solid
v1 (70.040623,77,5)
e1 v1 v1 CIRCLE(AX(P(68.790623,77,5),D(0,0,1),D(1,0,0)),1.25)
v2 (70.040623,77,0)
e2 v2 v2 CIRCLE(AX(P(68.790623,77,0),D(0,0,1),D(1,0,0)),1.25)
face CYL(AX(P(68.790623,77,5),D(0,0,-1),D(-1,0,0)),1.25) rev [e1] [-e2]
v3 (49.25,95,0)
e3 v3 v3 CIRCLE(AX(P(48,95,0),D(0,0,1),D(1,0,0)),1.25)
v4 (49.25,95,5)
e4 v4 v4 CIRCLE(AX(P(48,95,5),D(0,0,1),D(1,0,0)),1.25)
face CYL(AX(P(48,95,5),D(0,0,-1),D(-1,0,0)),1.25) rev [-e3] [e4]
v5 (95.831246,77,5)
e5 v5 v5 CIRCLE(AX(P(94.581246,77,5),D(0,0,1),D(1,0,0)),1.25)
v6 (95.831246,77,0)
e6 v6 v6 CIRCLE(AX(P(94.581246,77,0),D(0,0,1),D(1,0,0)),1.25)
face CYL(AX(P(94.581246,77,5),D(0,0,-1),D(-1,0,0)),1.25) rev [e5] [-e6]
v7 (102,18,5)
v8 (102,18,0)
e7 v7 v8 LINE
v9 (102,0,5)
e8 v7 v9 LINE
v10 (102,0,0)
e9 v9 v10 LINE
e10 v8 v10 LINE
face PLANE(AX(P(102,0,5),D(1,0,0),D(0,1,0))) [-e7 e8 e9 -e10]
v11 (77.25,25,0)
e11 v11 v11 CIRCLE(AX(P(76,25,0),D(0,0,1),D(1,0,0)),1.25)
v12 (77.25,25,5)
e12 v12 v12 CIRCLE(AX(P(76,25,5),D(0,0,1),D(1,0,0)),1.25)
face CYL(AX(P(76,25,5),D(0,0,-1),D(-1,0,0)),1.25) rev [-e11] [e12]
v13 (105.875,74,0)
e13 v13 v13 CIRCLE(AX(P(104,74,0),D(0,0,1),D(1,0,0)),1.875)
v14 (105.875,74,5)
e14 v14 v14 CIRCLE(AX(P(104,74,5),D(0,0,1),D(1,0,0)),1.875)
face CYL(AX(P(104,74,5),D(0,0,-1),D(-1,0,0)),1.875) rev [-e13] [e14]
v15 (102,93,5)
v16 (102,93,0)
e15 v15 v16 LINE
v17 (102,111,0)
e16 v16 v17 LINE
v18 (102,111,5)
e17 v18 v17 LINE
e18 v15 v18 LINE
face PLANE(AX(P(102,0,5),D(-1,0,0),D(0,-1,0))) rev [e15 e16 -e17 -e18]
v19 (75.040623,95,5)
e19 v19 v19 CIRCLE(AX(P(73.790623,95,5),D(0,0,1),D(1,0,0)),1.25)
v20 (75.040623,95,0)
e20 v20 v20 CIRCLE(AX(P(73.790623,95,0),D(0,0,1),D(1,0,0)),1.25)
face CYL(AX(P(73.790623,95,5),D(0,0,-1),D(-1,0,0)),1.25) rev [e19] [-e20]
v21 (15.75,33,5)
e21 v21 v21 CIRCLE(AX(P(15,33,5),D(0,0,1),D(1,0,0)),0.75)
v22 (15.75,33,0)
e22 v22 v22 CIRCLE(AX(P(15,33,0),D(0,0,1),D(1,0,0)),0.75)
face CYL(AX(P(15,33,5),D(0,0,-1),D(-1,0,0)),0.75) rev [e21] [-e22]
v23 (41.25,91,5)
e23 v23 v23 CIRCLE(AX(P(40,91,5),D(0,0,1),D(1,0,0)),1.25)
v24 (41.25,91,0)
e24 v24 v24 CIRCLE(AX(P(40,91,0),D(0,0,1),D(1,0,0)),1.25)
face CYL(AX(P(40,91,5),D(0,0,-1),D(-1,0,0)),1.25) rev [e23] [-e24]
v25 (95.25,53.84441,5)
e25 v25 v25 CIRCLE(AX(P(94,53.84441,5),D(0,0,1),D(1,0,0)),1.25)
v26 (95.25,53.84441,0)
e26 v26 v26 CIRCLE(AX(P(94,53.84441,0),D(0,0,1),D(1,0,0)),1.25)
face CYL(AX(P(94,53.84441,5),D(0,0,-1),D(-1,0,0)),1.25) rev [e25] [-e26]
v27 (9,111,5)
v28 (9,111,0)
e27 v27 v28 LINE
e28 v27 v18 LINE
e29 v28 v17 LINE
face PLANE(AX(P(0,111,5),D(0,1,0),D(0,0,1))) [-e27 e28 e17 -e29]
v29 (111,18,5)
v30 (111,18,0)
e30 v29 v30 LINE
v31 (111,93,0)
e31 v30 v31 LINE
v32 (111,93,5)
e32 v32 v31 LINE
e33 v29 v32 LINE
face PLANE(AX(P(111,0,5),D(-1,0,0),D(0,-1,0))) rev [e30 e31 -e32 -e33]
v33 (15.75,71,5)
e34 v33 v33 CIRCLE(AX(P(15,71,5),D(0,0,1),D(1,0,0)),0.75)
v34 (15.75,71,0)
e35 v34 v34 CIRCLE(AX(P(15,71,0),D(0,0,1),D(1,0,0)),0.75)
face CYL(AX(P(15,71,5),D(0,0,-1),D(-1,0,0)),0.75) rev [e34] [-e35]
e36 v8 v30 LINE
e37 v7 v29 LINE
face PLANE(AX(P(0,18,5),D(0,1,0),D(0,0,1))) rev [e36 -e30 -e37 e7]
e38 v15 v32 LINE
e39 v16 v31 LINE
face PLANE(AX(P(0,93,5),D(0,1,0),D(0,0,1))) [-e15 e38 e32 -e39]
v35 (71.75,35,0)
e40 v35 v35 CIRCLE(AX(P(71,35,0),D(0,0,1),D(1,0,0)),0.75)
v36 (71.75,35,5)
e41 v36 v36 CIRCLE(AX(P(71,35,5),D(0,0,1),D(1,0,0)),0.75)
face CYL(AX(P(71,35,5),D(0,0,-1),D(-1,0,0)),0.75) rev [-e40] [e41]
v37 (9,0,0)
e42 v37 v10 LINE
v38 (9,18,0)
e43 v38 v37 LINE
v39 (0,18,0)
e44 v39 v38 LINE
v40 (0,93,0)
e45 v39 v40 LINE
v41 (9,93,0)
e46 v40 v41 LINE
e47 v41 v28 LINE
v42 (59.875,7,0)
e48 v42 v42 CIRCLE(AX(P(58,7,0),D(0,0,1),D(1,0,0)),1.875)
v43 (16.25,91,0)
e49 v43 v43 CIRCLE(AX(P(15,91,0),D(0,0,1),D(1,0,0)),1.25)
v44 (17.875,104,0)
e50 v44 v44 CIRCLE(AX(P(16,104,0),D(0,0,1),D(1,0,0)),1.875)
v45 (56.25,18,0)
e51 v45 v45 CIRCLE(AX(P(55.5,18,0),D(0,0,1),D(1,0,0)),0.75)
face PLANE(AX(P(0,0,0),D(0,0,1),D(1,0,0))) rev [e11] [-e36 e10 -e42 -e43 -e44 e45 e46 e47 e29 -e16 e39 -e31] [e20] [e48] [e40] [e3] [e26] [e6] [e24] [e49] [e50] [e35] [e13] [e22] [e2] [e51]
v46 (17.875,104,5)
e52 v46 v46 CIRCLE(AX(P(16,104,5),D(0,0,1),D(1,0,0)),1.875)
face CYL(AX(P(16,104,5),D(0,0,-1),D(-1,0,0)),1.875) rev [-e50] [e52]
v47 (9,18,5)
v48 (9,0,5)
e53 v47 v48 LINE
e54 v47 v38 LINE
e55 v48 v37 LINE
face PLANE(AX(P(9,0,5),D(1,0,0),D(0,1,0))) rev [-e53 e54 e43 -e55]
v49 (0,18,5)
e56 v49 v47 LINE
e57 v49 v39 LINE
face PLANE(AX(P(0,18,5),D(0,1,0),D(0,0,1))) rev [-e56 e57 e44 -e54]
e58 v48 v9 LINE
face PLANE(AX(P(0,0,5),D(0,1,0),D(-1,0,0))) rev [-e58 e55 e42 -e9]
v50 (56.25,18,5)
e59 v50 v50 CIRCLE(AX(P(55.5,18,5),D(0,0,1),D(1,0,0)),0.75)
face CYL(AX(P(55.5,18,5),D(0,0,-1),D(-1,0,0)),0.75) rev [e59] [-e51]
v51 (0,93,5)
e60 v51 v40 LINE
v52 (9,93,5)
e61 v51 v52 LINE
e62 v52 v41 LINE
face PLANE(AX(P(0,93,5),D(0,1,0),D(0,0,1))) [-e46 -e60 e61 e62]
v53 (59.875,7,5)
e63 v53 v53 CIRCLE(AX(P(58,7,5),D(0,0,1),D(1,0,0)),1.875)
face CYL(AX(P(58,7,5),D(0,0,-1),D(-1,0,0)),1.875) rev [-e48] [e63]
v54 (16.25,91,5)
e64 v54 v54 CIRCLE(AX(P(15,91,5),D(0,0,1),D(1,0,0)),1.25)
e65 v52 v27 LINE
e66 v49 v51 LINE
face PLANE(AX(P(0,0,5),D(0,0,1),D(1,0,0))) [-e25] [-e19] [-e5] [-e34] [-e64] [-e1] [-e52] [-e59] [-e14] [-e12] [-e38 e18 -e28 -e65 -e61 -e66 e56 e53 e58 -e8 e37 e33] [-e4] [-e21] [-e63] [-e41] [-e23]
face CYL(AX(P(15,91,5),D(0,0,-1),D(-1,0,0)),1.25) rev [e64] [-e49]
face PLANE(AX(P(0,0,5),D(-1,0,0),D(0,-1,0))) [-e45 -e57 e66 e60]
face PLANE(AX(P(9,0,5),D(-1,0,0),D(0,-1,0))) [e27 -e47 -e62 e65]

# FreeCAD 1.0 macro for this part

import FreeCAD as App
import Part
import Sketcher
from FreeCAD import Vector

doc = App.newDocument("Part")
body = doc.addObject("PartDesign::Body", "Body")

# Sketch on XY plane
sketch1 = doc.addObject("Sketcher::SketchObject", "Sketch")
body.addObject(sketch1)
sketch1.AttachmentSupport = (doc.XY_Plane, [""])
sketch1.MapMode = "FlatFace"
sketch1.addGeometry([
    Part.LineSegment(Vector(9, 18, 0), Vector(9, 0, 0)),  # 0
    Part.LineSegment(Vector(9, 0, 0), Vector(102, 0, 0)),  # 1
    Part.LineSegment(Vector(102, 0, 0), Vector(102, 18, 0)),  # 2
    Part.LineSegment(Vector(102, 18, 0), Vector(111, 18, 0)),  # 3
    Part.LineSegment(Vector(111, 18, 0), Vector(111, 93, 0)),  # 4
    Part.LineSegment(Vector(111, 93, 0), Vector(102, 93, 0)),  # 5
    Part.LineSegment(Vector(102, 93, 0), Vector(102, 111, 0)),  # 6
    Part.LineSegment(Vector(102, 111, 0), Vector(9, 111, 0)),  # 7
    Part.LineSegment(Vector(9, 111, 0), Vector(9, 93, 0)),  # 8
    Part.LineSegment(Vector(9, 93, 0), Vector(0, 93, 0)),  # 9
    Part.LineSegment(Vector(0, 93, 0), Vector(0, 18, 0)),  # 10
    Part.LineSegment(Vector(0, 18, 0), Vector(9, 18, 0)),  # 11
    Part.Circle(Vector(58, 7, 0), Vector(0, 0, 1), 1.9),  # 12
    Part.Circle(Vector(55.5, 18, 0), Vector(0, 0, 1), 0.8),  # 13
    Part.Circle(Vector(15, 33, 0), Vector(0, 0, 1), 0.8),  # 14
    Part.Circle(Vector(76, 25, 0), Vector(0, 0, 1), 1.2),  # 15
    Part.Circle(Vector(71, 35, 0), Vector(0, 0, 1), 0.8),  # 16
    Part.Circle(Vector(94, 53.8, 0), Vector(0, 0, 1), 1.2),  # 17
    Part.Circle(Vector(15, 71, 0), Vector(0, 0, 1), 0.8),  # 18
    Part.Circle(Vector(15, 91, 0), Vector(0, 0, 1), 1.2),  # 19
    Part.Circle(Vector(16, 104, 0), Vector(0, 0, 1), 1.9),  # 20
    Part.Circle(Vector(40, 91, 0), Vector(0, 0, 1), 1.2),  # 21
    Part.Circle(Vector(48, 95, 0), Vector(0, 0, 1), 1.2),  # 22
    Part.Circle(Vector(68.8, 77, 0), Vector(0, 0, 1), 1.2),  # 23
    Part.Circle(Vector(104, 74, 0), Vector(0, 0, 1), 1.9),  # 24
    Part.Circle(Vector(94.6, 77, 0), Vector(0, 0, 1), 1.2),  # 25
    Part.Circle(Vector(73.8, 95, 0), Vector(0, 0, 1), 1.2),  # 26
], False)
sketch1.addConstraint([
    Sketcher.Constraint("Coincident", 0, 2, 1, 1),
    Sketcher.Constraint("Coincident", 1, 2, 2, 1),
    Sketcher.Constraint("Coincident", 2, 2, 3, 1),
    Sketcher.Constraint("Coincident", 3, 2, 4, 1),
    Sketcher.Constraint("Coincident", 4, 2, 5, 1),
    Sketcher.Constraint("Coincident", 5, 2, 6, 1),
    Sketcher.Constraint("Coincident", 6, 2, 7, 1),
    Sketcher.Constraint("Coincident", 7, 2, 8, 1),
    Sketcher.Constraint("Coincident", 8, 2, 9, 1),
    Sketcher.Constraint("Coincident", 9, 2, 10, 1),
    Sketcher.Constraint("Coincident", 10, 2, 11, 1),
    Sketcher.Constraint("Coincident", 11, 2, 0, 1),
    Sketcher.Constraint("Vertical", 0),
    Sketcher.Constraint("Horizontal", 1),
    Sketcher.Constraint("Vertical", 2),
    Sketcher.Constraint("Horizontal", 3),
    Sketcher.Constraint("Vertical", 4),
    Sketcher.Constraint("Horizontal", 5),
    Sketcher.Constraint("Vertical", 6),
    Sketcher.Constraint("Horizontal", 7),
    Sketcher.Constraint("Vertical", 8),
    Sketcher.Constraint("Horizontal", 9),
    Sketcher.Constraint("Vertical", 10),
    Sketcher.Constraint("Horizontal", 11),
    Sketcher.Constraint("Equal", 13, 14),
    Sketcher.Constraint("Equal", 14, 16),
    Sketcher.Constraint("Equal", 15, 17),
    Sketcher.Constraint("Equal", 16, 18),
    Sketcher.Constraint("Equal", 17, 19),
    Sketcher.Constraint("Equal", 12, 20),
    Sketcher.Constraint("Equal", 19, 21),
    Sketcher.Constraint("Equal", 21, 22),
    Sketcher.Constraint("Equal", 22, 23),
    Sketcher.Constraint("Equal", 20, 24),
    Sketcher.Constraint("Equal", 23, 25),
    Sketcher.Constraint("Equal", 25, 26),
    Sketcher.Constraint("PointOnObject", 0, 2, -1),
    Sketcher.Constraint("PointOnObject", 9, 2, -2),
    Sketcher.Constraint("Horizontal", 19, 3, 21, 3),
    Sketcher.Constraint("Horizontal", 23, 3, 25, 3),
    Sketcher.Constraint("Horizontal", 22, 3, 26, 3),
    Sketcher.Constraint("Horizontal", 13, 3, 2, 2),
    Sketcher.Constraint("Horizontal", 5, 2, 8, 2),
    Sketcher.Constraint("Horizontal", 3, 2, 10, 2),
    Sketcher.Constraint("Vertical", 14, 3, 18, 3),
    Sketcher.Constraint("Vertical", 18, 3, 19, 3),
    Sketcher.Constraint("Vertical", 2, 2, 5, 2),
    Sketcher.Constraint("Vertical", 0, 2, 7, 2),
    Sketcher.Constraint("Equal", 5, 9),
    Sketcher.Constraint("Equal", 2, 6),
    Sketcher.Constraint("Diameter", 13, 1.5),
    Sketcher.Constraint("Diameter", 15, 2.5),
    Sketcher.Constraint("Diameter", 12, 3.75),
    Sketcher.Constraint("DistanceX", 1, 1, 1, 2, 93.0),
    Sketcher.Constraint("DistanceX", 3, 1, 3, 2, 9.0),
    Sketcher.Constraint("DistanceY", 0, 2, 0, 1, 18.0),
    Sketcher.Constraint("DistanceY", 4, 1, 4, 2, 75.0),
    Sketcher.Constraint("DistanceX", -1, 1, 12, 3, 58.0),
    Sketcher.Constraint("DistanceY", -1, 1, 12, 3, 7.0),
    Sketcher.Constraint("DistanceX", -1, 1, 14, 3, 15.0),
    Sketcher.Constraint("DistanceY", -1, 1, 14, 3, 33.0),
    Sketcher.Constraint("DistanceX", -1, 1, 15, 3, 76.0),
    Sketcher.Constraint("DistanceY", -1, 1, 15, 3, 25.0),
    Sketcher.Constraint("DistanceX", -1, 1, 16, 3, 71.0),
    Sketcher.Constraint("DistanceY", -1, 1, 16, 3, 35.0),
    Sketcher.Constraint("DistanceX", -1, 1, 17, 3, 94.0),
    Sketcher.Constraint("DistanceY", -1, 1, 18, 3, 71.0),
    Sketcher.Constraint("DistanceY", -1, 1, 19, 3, 91.0),
    Sketcher.Constraint("DistanceX", -1, 1, 20, 3, 16.0),
    Sketcher.Constraint("DistanceY", -1, 1, 20, 3, 104.0),
    Sketcher.Constraint("DistanceX", -1, 1, 21, 3, 40.0),
    Sketcher.Constraint("DistanceX", -1, 1, 22, 3, 48.0),
    Sketcher.Constraint("DistanceY", -1, 1, 22, 3, 95.0),
    Sketcher.Constraint("DistanceY", -1, 1, 23, 3, 77.0),
    Sketcher.Constraint("DistanceX", -1, 1, 24, 3, 104.0),
    Sketcher.Constraint("DistanceY", -1, 1, 24, 3, 74.0),
    Sketcher.Constraint("DistanceX", 23, 3, 26, 3, 5.0),
    Sketcher.Constraint("DistanceX", -1, 1, 13, 3, 55.5),
    Sketcher.Constraint("DistanceY", -1, 1, 17, 3, 53.84441),
    Sketcher.Constraint("DistanceX", -1, 1, 23, 3, 68.790623),
    Sketcher.Constraint("DistanceX", -1, 1, 25, 3, 94.581246),
])
pad1 = doc.addObject("PartDesign::Pad", "Pad")
body.addObject(pad1)
pad1.Profile = sketch1
pad1.Length = 5

doc.recompute()
